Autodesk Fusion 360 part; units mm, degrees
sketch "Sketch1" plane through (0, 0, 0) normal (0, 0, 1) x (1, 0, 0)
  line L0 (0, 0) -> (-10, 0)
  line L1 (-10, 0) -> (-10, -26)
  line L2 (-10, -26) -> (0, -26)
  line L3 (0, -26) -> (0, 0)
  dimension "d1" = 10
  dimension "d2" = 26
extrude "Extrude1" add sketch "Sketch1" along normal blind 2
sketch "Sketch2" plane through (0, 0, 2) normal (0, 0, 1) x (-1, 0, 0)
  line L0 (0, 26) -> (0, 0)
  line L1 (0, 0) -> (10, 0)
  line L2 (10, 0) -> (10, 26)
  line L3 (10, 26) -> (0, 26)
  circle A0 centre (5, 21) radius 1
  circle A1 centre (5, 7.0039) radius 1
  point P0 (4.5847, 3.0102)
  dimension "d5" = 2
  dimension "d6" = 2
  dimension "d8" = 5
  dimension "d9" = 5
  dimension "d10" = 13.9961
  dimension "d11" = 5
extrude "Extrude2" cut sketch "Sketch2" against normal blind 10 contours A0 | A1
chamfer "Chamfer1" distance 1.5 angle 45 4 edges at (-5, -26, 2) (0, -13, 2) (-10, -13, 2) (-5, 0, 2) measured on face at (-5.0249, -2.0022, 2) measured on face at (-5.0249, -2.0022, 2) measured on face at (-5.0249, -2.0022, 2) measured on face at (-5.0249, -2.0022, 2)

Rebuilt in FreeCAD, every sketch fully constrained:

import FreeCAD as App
import Part
import Sketcher
from FreeCAD import Vector
Q = App.Units.Quantity


def edges_at(feature, points):
    """Names of the edges that pass closest to the given points."""
    edges = feature.Shape.Edges
    near = lambda p: min(range(len(edges)), key=lambda i: edges[i].distToShape(Part.Vertex(*p))[0])
    return sorted({f"Edge{near(p) + 1}" for p in points})


def add_polygon(sketch, points):
    """Adds a closed chain of lines whose ends are joined by coincident constraints."""
    first, n = sketch.GeometryCount, len(points)
    for a, b in zip(points, points[1:] + points[:1]):
        sketch.addGeometry(Part.LineSegment(App.Vector(*a, 0), App.Vector(*b, 0)), False)
    for i in range(n):
        sketch.addConstraint(Sketcher.Constraint("Coincident", first + i, 2, first + (i + 1) % n, 1))

doc = App.newDocument("Part")
body = doc.addObject("PartDesign::Body", "Body")

sketch1 = body.newObject("Sketcher::SketchObject", "Sketch")
sketch1.AttachmentSupport = (doc.getObject("XY_Plane"), [""])
sketch1.MapMode = "FlatFace"
add_polygon(sketch1, [(0, -26), (0, 0), (-10, 0), (-10, -26)])
sketch1.addConstraint([
    Sketcher.Constraint("Vertical", 0),
    Sketcher.Constraint("Horizontal", 1),
    Sketcher.Constraint("Vertical", 2),
    Sketcher.Constraint("Horizontal", 3),
    Sketcher.Constraint("Coincident", 0, 2, -1, 1),
    Sketcher.Constraint("DistanceX", 1, 2, 1, 1, Q("10 mm")),
    Sketcher.Constraint("DistanceY", 0, 1, 0, 2, Q("26 mm")),
])
pad1 = body.newObject("PartDesign::Pad", "Pad")
pad1.Profile = sketch1
pad1.Length = 2

sketch2 = body.newObject("Sketcher::SketchObject", "Sketch001")
sketch2.AttachmentSupport = (doc.getObject("XY_Plane"), [""])
sketch2.MapMode = "FlatFace"
sketch2.AttachmentOffset = App.Placement(Vector(0, 0, 2), App.Rotation())
sketch2.addGeometry([
    Part.Circle(Vector(-5, -21, 0), Vector(0, 0, 1), 1),
    Part.Circle(Vector(-5, -7, 0), Vector(0, 0, 1), 1),
], False)
sketch2.addConstraint([
    Sketcher.Constraint("Equal", 0, 1),
    Sketcher.Constraint("Vertical", 0, 3, 1, 3),
    Sketcher.Constraint("Diameter", 0, Q("2 mm")),
    Sketcher.Constraint("DistanceX", 0, 3, -1, 1, Q("5 mm")),
    Sketcher.Constraint("DistanceY", 0, 3, -1, 1, Q("21 mm")),
    Sketcher.Constraint("DistanceY", 0, 3, 1, 3, Q("13.996 mm")),
])
pocket1 = body.newObject("PartDesign::Pocket", "Pocket")
pocket1.Profile = sketch2
pocket1.Length = 10
doc.recompute()

chamfer = body.newObject("PartDesign::Chamfer", "Chamfer")
chamfer.Base = (pocket1, edges_at(pocket1, [
    (-5, -26, 2),
    (0, -13, 2),
    (-10, -13, 2),
    (-5, 0, 2),
]))
chamfer.Size = 1.5

doc.recompute()
